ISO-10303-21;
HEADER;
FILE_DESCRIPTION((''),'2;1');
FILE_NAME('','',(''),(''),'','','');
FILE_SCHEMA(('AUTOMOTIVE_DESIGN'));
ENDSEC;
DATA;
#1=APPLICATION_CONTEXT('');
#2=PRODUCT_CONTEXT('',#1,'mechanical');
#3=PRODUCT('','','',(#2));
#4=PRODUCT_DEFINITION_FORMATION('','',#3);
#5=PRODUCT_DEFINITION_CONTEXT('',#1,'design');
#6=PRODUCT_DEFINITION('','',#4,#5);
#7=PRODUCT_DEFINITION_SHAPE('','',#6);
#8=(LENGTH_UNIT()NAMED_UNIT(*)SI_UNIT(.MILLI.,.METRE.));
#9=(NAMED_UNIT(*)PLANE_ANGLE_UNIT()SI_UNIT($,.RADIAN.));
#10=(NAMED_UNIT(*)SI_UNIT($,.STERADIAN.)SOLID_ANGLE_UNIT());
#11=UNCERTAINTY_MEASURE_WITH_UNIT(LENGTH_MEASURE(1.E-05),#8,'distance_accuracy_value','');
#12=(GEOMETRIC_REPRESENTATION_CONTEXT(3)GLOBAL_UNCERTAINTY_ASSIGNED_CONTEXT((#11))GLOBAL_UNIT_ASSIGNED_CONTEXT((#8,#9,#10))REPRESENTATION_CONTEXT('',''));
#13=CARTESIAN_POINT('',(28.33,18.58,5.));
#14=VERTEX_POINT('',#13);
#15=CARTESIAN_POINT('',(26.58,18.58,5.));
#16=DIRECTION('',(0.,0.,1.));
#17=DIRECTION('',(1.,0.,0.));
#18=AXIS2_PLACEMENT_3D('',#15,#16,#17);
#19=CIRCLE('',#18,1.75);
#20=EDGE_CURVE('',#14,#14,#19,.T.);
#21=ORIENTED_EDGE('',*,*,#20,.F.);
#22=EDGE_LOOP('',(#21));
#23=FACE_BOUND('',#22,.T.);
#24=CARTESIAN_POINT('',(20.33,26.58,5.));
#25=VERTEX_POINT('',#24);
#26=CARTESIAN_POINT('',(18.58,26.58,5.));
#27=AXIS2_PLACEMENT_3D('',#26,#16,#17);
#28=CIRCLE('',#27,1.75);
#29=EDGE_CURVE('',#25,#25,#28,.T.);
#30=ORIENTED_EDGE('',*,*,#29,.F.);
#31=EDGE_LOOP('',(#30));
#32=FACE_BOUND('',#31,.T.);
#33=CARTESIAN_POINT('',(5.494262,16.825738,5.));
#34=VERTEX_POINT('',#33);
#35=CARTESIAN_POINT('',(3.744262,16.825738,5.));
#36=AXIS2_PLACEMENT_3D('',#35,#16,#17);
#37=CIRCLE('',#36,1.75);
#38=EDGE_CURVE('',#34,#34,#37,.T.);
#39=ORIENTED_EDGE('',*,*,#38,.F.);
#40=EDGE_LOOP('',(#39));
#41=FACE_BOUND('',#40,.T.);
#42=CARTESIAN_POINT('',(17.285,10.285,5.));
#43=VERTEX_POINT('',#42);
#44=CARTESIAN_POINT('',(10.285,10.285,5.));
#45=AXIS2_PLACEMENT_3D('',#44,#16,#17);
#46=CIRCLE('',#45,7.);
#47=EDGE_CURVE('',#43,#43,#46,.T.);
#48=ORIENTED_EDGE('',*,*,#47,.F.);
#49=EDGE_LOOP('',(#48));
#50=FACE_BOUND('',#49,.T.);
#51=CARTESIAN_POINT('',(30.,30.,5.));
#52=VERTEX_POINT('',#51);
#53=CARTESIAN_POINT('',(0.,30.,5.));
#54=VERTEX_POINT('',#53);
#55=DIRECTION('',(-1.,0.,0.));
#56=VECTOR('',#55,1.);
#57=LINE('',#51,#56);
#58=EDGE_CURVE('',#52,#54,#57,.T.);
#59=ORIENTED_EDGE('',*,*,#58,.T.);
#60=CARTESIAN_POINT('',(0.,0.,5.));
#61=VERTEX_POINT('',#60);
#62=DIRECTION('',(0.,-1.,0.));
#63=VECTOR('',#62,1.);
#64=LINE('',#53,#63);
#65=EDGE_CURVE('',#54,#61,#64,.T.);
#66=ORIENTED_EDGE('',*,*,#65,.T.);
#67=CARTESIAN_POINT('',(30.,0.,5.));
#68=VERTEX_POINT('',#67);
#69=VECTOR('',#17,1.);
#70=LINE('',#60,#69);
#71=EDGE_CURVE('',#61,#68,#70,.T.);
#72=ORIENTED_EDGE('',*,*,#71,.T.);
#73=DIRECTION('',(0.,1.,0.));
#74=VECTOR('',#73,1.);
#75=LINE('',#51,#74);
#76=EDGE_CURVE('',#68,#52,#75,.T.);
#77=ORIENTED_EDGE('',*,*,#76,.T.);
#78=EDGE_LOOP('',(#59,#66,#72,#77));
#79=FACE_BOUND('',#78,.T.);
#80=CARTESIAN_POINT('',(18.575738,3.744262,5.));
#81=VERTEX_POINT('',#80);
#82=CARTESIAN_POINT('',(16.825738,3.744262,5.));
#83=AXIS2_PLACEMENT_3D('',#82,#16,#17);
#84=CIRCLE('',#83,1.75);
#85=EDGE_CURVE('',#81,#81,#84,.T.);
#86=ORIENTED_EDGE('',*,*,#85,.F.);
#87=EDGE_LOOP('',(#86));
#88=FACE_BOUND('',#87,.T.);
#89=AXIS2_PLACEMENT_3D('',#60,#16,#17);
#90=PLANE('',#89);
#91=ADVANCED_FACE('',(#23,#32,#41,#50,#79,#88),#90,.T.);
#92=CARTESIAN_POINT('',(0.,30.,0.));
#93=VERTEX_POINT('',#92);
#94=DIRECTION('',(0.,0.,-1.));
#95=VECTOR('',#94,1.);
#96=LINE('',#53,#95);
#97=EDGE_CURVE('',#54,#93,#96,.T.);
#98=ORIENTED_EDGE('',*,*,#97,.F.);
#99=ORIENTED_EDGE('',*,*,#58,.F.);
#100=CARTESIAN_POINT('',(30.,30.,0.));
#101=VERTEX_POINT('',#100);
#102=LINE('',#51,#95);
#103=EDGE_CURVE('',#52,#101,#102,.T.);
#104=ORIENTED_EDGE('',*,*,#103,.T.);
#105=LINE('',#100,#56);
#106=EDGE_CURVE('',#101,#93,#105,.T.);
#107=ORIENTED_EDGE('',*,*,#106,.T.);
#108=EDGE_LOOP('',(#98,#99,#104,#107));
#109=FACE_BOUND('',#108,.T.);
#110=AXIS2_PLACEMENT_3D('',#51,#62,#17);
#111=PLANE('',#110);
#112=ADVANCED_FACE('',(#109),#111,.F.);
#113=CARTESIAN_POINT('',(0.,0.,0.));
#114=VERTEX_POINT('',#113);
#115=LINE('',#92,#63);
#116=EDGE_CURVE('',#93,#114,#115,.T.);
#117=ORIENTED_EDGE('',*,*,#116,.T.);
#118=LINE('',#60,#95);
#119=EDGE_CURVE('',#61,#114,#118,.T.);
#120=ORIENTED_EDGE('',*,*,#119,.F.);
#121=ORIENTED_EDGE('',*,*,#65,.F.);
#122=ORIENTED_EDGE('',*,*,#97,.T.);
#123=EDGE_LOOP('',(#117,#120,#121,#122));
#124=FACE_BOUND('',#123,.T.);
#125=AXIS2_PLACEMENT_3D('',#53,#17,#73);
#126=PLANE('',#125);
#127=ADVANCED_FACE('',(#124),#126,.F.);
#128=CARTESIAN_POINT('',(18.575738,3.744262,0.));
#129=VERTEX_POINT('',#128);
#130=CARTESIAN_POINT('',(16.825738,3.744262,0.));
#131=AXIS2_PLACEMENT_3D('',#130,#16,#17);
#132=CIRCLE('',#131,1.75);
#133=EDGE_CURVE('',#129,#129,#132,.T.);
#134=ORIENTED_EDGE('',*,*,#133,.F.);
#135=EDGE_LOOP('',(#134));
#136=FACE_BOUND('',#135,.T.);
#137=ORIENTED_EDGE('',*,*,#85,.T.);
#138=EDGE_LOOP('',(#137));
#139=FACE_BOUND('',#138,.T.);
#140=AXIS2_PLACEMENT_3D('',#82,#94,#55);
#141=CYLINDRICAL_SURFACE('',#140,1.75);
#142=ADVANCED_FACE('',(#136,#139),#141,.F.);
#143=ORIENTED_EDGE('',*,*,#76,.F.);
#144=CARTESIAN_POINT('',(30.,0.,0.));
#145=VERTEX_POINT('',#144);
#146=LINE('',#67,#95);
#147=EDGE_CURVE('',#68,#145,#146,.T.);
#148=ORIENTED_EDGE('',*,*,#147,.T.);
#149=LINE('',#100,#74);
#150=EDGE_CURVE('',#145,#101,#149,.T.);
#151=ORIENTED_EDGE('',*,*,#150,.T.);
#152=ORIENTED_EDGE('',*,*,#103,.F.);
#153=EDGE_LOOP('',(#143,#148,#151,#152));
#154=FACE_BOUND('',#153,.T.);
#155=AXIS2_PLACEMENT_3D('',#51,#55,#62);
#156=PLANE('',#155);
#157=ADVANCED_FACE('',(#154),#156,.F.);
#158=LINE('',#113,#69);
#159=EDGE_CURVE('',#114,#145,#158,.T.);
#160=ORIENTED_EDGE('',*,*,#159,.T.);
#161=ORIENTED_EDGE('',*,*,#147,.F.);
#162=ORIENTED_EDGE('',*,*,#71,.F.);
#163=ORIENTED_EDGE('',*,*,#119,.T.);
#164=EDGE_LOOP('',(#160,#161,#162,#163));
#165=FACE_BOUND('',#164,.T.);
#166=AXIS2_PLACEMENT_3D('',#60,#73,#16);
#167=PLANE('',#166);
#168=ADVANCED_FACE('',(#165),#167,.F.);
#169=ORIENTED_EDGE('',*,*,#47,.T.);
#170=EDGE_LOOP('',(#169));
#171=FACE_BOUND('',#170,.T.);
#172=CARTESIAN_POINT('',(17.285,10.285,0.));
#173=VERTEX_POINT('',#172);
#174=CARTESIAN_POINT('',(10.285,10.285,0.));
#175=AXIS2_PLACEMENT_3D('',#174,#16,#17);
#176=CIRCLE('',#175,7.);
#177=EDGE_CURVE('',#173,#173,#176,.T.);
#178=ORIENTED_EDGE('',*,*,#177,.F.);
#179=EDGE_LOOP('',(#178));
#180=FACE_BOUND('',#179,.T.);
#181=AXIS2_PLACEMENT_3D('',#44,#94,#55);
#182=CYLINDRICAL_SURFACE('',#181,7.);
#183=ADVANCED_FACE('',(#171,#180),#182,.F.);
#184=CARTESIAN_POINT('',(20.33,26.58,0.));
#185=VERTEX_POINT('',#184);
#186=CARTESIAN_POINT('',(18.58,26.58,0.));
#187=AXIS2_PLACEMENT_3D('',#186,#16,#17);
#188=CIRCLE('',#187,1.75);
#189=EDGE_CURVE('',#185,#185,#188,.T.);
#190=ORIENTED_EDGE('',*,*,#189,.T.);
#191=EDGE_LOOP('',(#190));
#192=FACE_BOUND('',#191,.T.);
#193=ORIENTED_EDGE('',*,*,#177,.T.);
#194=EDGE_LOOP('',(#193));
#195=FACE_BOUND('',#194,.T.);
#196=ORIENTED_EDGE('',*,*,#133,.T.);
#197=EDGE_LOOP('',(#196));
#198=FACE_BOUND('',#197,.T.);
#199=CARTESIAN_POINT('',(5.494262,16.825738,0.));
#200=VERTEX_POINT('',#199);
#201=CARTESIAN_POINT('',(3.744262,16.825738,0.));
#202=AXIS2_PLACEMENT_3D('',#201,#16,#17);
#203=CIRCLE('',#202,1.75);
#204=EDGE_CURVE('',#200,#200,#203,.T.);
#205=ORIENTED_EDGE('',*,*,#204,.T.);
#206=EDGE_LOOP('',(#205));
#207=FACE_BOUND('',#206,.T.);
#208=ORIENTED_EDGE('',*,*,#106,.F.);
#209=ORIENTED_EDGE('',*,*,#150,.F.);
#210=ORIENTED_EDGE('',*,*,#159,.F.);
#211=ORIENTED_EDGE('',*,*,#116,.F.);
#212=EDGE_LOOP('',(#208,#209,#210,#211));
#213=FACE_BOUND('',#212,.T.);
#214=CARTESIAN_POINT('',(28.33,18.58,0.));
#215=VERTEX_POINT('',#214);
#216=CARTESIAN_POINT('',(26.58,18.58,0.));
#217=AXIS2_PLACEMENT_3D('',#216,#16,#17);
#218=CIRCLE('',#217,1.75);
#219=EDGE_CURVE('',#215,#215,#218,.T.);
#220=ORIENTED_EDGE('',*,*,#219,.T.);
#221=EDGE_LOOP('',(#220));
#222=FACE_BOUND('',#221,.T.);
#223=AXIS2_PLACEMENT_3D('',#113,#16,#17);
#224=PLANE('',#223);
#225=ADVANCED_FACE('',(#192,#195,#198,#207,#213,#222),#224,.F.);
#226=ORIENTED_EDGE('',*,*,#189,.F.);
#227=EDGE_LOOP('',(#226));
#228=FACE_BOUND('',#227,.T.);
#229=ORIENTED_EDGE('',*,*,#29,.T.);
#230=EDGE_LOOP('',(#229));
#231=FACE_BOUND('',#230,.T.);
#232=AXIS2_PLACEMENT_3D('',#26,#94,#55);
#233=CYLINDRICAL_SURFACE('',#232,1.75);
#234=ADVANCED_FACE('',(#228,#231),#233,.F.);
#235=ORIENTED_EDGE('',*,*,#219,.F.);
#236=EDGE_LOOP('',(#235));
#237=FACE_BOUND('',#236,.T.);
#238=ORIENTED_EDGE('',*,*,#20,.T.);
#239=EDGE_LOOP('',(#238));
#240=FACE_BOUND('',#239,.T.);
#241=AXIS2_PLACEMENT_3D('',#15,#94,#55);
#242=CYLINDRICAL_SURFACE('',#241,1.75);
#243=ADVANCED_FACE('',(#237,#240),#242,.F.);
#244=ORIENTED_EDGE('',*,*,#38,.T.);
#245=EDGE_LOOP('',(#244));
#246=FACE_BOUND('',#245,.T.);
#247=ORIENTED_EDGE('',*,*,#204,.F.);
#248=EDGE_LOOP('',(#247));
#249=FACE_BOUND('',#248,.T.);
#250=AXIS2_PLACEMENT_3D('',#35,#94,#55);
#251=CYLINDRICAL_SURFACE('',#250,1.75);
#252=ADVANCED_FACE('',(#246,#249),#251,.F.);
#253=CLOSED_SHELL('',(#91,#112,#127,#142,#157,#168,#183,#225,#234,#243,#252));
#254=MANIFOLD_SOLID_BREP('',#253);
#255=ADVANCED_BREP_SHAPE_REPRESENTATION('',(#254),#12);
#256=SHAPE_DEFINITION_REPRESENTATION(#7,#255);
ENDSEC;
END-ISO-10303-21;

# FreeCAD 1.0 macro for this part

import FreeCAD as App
import Part
import Sketcher
from FreeCAD import Vector
Q = App.Units.Quantity


def add_polygon(sketch, points):
    """Adds a closed chain of lines whose ends are joined by coincident constraints."""
    first, n = sketch.GeometryCount, len(points)
    for a, b in zip(points, points[1:] + points[:1]):
        sketch.addGeometry(Part.LineSegment(App.Vector(*a, 0), App.Vector(*b, 0)), False)
    for i in range(n):
        sketch.addConstraint(Sketcher.Constraint("Coincident", first + i, 2, first + (i + 1) % n, 1))

doc = App.newDocument("Part")
body = doc.addObject("PartDesign::Body", "Body")

# Sketch on XY plane
sketch1 = doc.addObject("Sketcher::SketchObject", "Sketch")
body.addObject(sketch1)
sketch1.AttachmentSupport = (doc.XY_Plane, [""])
sketch1.MapMode = "FlatFace"
add_polygon(sketch1, [(0, 30), (0, 0), (30, 0), (30, 30)])  # lines 0-3
sketch1.addGeometry(Part.Circle(Vector(10.285, 10.285, 0), Vector(0, 0, 1), 7), False)  # 4
sketch1.addGeometry(Part.Circle(Vector(16.825738, 3.744262, 0), Vector(0, 0, 1), 1.75), False)  # 5
sketch1.addGeometry(Part.Circle(Vector(3.744262, 16.825738, 0), Vector(0, 0, 1), 1.75), False)  # 6
sketch1.addGeometry(Part.Circle(Vector(26.58, 18.58, 0), Vector(0, 0, 1), 1.75), False)  # 7
sketch1.addGeometry(Part.Circle(Vector(18.58, 26.58, 0), Vector(0, 0, 1), 1.75), False)  # 8
sketch1.addConstraint([
    Sketcher.Constraint("Vertical", 0),
    Sketcher.Constraint("Horizontal", 1),
    Sketcher.Constraint("Vertical", 2),
    Sketcher.Constraint("Horizontal", 3),
    Sketcher.Constraint("Coincident", 0, 2, -1, 1),
    Sketcher.Constraint("Equal", 5, 6),
    Sketcher.Constraint("Equal", 6, 7),
    Sketcher.Constraint("Equal", 7, 8),
    Sketcher.Constraint("Equal", 3, 0),
    Sketcher.Constraint("Diameter", 4, Q("14 mm")),
    Sketcher.Constraint("Diameter", 5, Q("3.5 mm")),
    Sketcher.Constraint("DistanceX", 1, 1, 1, 2, Q("30 mm")),
    Sketcher.Constraint("DistanceX", 8, 3, 7, 3, Q("8 mm")),
    Sketcher.Constraint("DistanceY", 7, 3, 8, 3, Q("8 mm")),
    Sketcher.Constraint("DistanceX", -1, 1, 7, 3, Q("26.58 mm")),
    Sketcher.Constraint("DistanceY", -1, 1, 7, 3, Q("18.58 mm")),
    Sketcher.Constraint("DistanceX", -1, 1, 4, 3, Q("10.285 mm")),
    Sketcher.Constraint("DistanceY", -1, 1, 4, 3, Q("10.285 mm")),
    Sketcher.Constraint("DistanceX", -1, 1, 5, 3, Q("16.825738 mm")),
    Sketcher.Constraint("DistanceY", -1, 1, 5, 3, Q("3.744262 mm")),
    Sketcher.Constraint("DistanceX", -1, 1, 6, 3, Q("3.744262 mm")),
    Sketcher.Constraint("DistanceY", -1, 1, 6, 3, Q("16.825738 mm")),
])
pad1 = doc.addObject("PartDesign::Pad", "Pad")
body.addObject(pad1)
pad1.Profile = sketch1
pad1.Length = 5

doc.recompute()
